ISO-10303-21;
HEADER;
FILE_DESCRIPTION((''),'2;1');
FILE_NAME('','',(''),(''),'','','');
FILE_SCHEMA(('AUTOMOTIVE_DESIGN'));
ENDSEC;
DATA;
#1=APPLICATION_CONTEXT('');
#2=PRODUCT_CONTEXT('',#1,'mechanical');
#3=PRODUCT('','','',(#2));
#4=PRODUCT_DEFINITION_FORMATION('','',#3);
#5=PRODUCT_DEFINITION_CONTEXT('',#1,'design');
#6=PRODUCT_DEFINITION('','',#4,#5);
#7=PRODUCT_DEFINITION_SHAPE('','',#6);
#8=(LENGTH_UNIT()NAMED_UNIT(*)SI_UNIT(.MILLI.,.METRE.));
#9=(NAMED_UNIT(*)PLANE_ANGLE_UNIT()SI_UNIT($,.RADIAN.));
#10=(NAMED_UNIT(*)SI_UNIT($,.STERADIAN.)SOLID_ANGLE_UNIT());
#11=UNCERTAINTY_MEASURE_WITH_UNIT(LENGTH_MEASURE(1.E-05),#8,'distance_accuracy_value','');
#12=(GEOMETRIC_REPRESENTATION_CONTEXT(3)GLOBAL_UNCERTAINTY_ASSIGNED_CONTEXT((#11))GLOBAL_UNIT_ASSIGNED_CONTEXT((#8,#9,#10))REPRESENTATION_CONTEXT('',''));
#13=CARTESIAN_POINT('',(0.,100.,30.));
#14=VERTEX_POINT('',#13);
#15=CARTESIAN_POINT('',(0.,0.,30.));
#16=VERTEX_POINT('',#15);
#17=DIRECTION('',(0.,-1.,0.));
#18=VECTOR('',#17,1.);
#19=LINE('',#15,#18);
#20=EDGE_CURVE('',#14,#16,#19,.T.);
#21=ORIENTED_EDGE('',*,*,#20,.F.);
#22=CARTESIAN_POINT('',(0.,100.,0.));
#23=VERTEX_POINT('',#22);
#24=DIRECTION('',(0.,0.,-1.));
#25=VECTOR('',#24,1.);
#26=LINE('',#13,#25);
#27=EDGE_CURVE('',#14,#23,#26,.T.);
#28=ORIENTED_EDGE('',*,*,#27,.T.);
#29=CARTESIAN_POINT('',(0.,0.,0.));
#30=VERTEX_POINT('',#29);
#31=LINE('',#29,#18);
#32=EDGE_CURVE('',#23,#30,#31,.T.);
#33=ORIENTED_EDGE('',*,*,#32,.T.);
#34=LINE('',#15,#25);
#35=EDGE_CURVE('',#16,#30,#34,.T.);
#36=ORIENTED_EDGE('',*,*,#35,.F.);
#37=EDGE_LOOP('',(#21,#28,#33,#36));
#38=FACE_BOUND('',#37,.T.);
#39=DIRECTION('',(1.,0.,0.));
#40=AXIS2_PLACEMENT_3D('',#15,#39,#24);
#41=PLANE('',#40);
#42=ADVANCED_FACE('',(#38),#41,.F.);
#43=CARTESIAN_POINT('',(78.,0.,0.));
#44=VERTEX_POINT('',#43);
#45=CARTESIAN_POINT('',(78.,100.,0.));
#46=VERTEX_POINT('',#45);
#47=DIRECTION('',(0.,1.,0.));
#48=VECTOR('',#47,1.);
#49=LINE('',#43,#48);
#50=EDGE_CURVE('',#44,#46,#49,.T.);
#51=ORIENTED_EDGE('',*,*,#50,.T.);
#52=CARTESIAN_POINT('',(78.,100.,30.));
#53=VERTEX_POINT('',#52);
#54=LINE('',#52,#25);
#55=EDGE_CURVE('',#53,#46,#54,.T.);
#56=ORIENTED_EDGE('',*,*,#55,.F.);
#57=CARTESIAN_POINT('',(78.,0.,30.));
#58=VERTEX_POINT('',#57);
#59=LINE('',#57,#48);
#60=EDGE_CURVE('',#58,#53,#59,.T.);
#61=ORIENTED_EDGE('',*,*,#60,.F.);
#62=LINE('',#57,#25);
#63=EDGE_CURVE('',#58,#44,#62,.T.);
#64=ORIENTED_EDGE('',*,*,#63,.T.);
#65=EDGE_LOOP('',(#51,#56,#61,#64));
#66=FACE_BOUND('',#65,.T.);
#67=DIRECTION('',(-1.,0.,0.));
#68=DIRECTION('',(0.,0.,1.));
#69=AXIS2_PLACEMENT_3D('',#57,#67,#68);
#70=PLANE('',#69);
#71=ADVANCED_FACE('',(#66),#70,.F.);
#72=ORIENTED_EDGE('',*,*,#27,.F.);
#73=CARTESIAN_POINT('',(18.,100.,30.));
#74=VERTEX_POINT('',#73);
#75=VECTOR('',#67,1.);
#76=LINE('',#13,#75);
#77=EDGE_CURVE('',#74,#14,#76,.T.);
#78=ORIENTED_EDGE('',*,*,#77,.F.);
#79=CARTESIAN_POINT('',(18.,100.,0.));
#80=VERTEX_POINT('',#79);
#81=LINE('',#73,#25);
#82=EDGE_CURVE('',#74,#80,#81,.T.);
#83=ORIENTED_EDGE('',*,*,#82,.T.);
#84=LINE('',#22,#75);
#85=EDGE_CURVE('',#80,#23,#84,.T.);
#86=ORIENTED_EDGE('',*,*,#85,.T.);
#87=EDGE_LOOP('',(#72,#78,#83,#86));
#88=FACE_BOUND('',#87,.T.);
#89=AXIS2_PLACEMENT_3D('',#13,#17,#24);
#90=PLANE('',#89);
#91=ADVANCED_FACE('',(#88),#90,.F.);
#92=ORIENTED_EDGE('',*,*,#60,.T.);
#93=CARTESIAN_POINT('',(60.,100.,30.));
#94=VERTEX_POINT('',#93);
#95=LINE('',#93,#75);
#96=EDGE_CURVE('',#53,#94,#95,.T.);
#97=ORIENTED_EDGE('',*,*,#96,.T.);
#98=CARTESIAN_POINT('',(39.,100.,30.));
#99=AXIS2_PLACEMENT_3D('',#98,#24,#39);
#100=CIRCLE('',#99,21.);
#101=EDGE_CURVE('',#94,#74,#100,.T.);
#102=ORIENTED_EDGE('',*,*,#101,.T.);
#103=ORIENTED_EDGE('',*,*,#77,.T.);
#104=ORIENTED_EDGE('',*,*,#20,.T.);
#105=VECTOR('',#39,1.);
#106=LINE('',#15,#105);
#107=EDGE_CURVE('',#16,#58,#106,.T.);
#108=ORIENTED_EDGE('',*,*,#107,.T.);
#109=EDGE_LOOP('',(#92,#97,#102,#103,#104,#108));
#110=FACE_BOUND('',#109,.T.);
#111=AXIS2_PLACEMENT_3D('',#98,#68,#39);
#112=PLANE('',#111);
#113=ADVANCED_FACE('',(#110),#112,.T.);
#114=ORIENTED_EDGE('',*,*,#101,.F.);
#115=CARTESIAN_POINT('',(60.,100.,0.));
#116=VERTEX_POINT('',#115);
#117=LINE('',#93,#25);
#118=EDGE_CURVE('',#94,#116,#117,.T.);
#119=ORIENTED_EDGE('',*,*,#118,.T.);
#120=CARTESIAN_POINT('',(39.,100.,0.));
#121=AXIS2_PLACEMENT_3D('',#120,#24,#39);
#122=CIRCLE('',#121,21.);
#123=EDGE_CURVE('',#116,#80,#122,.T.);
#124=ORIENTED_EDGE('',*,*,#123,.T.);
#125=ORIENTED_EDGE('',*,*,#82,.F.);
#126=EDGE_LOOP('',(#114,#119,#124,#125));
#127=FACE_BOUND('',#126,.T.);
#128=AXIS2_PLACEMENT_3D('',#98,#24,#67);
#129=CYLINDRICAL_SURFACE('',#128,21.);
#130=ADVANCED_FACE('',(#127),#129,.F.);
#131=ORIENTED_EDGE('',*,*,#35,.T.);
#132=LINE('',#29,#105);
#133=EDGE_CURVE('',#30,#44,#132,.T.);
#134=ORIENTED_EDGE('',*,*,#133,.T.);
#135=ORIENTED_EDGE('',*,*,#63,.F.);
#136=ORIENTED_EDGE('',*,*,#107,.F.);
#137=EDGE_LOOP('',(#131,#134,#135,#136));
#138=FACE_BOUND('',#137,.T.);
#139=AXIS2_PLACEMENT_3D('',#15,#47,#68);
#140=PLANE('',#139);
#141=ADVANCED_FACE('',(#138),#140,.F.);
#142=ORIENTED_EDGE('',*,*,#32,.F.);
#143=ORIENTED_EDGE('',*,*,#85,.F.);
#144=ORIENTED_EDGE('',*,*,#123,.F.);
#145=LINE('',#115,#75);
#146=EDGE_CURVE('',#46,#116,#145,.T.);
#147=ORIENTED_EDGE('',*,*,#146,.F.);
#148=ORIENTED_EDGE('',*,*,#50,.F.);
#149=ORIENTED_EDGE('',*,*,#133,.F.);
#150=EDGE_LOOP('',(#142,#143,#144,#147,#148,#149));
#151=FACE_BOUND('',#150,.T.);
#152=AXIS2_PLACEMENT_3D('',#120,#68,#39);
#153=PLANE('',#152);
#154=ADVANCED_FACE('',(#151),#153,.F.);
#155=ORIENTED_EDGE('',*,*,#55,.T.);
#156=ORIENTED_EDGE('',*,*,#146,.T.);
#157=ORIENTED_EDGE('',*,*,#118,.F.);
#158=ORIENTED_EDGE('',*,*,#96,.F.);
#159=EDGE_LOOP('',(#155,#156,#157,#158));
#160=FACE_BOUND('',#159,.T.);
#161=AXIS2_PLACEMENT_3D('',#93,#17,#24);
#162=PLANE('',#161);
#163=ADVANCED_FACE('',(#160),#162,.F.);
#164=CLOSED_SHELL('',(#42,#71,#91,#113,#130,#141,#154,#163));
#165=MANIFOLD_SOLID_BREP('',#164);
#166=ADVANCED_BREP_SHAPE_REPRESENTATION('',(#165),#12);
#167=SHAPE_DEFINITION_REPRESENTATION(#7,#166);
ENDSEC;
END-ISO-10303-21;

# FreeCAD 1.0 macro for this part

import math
import FreeCAD as App
import Part
import Sketcher

V = App.Vector
Q = App.Units.Quantity

doc = App.newDocument("Part")
body = doc.addObject("PartDesign::Body", "Body")

sketch1 = body.newObject("Sketcher::SketchObject", "Sketch")
sketch1.AttachmentSupport = (doc.getObject("XY_Plane"), [""])
sketch1.MapMode = "FlatFace"
sketch1.addGeometry(Part.LineSegment(V(0, 0, 0), V(78, 0, 0)), False)
sketch1.addGeometry(Part.LineSegment(V(78, 0, 0), V(78, 100, 0)), False)
sketch1.addGeometry(Part.LineSegment(V(78, 100, 0), V(60, 100, 0)), False)
sketch1.addGeometry(Part.ArcOfCircle(Part.Circle(V(39, 100, 0), V(0, 0, 1), 21), math.radians(180), math.radians(360)), False)
sketch1.addGeometry(Part.LineSegment(V(18, 100, 0), V(0, 100, 0)), False)
sketch1.addGeometry(Part.LineSegment(V(0, 100, 0), V(0, 0, 0)), False)
sketch1.addConstraint(Sketcher.Constraint("Coincident", 0, 2, 1, 1))
sketch1.addConstraint(Sketcher.Constraint("Coincident", 1, 2, 2, 1))
sketch1.addConstraint(Sketcher.Constraint("Coincident", 2, 2, 3, 2))
sketch1.addConstraint(Sketcher.Constraint("Coincident", 3, 1, 4, 1))
sketch1.addConstraint(Sketcher.Constraint("Coincident", 4, 2, 5, 1))
sketch1.addConstraint(Sketcher.Constraint("Coincident", 5, 2, 0, 1))
sketch1.addConstraint(Sketcher.Constraint("Horizontal", 0))
sketch1.addConstraint(Sketcher.Constraint("Vertical", 1))
sketch1.addConstraint(Sketcher.Constraint("Horizontal", 2))
sketch1.addConstraint(Sketcher.Constraint("Horizontal", 4))
sketch1.addConstraint(Sketcher.Constraint("Vertical", 5))
sketch1.addConstraint(Sketcher.Constraint("Coincident", 5, 2, -1, 1))
sketch1.addConstraint(Sketcher.Constraint("Horizontal", 3, 3, 1, 2))
sketch1.addConstraint(Sketcher.Constraint("Horizontal", 2, 2, 3, 1))
sketch1.addConstraint(Sketcher.Constraint("Equal", 2, 4))
sketch1.addConstraint(Sketcher.Constraint("Radius", 3, Q("21 mm")))
sketch1.addConstraint(Sketcher.Constraint("DistanceX", 0, 1, 0, 2, Q("78 mm")))
sketch1.addConstraint(Sketcher.Constraint("DistanceY", 1, 1, 1, 2, Q("100 mm")))
pad1 = body.newObject("PartDesign::Pad", "Pad")
pad1.Profile = sketch1
pad1.Length = 30

doc.recompute()
